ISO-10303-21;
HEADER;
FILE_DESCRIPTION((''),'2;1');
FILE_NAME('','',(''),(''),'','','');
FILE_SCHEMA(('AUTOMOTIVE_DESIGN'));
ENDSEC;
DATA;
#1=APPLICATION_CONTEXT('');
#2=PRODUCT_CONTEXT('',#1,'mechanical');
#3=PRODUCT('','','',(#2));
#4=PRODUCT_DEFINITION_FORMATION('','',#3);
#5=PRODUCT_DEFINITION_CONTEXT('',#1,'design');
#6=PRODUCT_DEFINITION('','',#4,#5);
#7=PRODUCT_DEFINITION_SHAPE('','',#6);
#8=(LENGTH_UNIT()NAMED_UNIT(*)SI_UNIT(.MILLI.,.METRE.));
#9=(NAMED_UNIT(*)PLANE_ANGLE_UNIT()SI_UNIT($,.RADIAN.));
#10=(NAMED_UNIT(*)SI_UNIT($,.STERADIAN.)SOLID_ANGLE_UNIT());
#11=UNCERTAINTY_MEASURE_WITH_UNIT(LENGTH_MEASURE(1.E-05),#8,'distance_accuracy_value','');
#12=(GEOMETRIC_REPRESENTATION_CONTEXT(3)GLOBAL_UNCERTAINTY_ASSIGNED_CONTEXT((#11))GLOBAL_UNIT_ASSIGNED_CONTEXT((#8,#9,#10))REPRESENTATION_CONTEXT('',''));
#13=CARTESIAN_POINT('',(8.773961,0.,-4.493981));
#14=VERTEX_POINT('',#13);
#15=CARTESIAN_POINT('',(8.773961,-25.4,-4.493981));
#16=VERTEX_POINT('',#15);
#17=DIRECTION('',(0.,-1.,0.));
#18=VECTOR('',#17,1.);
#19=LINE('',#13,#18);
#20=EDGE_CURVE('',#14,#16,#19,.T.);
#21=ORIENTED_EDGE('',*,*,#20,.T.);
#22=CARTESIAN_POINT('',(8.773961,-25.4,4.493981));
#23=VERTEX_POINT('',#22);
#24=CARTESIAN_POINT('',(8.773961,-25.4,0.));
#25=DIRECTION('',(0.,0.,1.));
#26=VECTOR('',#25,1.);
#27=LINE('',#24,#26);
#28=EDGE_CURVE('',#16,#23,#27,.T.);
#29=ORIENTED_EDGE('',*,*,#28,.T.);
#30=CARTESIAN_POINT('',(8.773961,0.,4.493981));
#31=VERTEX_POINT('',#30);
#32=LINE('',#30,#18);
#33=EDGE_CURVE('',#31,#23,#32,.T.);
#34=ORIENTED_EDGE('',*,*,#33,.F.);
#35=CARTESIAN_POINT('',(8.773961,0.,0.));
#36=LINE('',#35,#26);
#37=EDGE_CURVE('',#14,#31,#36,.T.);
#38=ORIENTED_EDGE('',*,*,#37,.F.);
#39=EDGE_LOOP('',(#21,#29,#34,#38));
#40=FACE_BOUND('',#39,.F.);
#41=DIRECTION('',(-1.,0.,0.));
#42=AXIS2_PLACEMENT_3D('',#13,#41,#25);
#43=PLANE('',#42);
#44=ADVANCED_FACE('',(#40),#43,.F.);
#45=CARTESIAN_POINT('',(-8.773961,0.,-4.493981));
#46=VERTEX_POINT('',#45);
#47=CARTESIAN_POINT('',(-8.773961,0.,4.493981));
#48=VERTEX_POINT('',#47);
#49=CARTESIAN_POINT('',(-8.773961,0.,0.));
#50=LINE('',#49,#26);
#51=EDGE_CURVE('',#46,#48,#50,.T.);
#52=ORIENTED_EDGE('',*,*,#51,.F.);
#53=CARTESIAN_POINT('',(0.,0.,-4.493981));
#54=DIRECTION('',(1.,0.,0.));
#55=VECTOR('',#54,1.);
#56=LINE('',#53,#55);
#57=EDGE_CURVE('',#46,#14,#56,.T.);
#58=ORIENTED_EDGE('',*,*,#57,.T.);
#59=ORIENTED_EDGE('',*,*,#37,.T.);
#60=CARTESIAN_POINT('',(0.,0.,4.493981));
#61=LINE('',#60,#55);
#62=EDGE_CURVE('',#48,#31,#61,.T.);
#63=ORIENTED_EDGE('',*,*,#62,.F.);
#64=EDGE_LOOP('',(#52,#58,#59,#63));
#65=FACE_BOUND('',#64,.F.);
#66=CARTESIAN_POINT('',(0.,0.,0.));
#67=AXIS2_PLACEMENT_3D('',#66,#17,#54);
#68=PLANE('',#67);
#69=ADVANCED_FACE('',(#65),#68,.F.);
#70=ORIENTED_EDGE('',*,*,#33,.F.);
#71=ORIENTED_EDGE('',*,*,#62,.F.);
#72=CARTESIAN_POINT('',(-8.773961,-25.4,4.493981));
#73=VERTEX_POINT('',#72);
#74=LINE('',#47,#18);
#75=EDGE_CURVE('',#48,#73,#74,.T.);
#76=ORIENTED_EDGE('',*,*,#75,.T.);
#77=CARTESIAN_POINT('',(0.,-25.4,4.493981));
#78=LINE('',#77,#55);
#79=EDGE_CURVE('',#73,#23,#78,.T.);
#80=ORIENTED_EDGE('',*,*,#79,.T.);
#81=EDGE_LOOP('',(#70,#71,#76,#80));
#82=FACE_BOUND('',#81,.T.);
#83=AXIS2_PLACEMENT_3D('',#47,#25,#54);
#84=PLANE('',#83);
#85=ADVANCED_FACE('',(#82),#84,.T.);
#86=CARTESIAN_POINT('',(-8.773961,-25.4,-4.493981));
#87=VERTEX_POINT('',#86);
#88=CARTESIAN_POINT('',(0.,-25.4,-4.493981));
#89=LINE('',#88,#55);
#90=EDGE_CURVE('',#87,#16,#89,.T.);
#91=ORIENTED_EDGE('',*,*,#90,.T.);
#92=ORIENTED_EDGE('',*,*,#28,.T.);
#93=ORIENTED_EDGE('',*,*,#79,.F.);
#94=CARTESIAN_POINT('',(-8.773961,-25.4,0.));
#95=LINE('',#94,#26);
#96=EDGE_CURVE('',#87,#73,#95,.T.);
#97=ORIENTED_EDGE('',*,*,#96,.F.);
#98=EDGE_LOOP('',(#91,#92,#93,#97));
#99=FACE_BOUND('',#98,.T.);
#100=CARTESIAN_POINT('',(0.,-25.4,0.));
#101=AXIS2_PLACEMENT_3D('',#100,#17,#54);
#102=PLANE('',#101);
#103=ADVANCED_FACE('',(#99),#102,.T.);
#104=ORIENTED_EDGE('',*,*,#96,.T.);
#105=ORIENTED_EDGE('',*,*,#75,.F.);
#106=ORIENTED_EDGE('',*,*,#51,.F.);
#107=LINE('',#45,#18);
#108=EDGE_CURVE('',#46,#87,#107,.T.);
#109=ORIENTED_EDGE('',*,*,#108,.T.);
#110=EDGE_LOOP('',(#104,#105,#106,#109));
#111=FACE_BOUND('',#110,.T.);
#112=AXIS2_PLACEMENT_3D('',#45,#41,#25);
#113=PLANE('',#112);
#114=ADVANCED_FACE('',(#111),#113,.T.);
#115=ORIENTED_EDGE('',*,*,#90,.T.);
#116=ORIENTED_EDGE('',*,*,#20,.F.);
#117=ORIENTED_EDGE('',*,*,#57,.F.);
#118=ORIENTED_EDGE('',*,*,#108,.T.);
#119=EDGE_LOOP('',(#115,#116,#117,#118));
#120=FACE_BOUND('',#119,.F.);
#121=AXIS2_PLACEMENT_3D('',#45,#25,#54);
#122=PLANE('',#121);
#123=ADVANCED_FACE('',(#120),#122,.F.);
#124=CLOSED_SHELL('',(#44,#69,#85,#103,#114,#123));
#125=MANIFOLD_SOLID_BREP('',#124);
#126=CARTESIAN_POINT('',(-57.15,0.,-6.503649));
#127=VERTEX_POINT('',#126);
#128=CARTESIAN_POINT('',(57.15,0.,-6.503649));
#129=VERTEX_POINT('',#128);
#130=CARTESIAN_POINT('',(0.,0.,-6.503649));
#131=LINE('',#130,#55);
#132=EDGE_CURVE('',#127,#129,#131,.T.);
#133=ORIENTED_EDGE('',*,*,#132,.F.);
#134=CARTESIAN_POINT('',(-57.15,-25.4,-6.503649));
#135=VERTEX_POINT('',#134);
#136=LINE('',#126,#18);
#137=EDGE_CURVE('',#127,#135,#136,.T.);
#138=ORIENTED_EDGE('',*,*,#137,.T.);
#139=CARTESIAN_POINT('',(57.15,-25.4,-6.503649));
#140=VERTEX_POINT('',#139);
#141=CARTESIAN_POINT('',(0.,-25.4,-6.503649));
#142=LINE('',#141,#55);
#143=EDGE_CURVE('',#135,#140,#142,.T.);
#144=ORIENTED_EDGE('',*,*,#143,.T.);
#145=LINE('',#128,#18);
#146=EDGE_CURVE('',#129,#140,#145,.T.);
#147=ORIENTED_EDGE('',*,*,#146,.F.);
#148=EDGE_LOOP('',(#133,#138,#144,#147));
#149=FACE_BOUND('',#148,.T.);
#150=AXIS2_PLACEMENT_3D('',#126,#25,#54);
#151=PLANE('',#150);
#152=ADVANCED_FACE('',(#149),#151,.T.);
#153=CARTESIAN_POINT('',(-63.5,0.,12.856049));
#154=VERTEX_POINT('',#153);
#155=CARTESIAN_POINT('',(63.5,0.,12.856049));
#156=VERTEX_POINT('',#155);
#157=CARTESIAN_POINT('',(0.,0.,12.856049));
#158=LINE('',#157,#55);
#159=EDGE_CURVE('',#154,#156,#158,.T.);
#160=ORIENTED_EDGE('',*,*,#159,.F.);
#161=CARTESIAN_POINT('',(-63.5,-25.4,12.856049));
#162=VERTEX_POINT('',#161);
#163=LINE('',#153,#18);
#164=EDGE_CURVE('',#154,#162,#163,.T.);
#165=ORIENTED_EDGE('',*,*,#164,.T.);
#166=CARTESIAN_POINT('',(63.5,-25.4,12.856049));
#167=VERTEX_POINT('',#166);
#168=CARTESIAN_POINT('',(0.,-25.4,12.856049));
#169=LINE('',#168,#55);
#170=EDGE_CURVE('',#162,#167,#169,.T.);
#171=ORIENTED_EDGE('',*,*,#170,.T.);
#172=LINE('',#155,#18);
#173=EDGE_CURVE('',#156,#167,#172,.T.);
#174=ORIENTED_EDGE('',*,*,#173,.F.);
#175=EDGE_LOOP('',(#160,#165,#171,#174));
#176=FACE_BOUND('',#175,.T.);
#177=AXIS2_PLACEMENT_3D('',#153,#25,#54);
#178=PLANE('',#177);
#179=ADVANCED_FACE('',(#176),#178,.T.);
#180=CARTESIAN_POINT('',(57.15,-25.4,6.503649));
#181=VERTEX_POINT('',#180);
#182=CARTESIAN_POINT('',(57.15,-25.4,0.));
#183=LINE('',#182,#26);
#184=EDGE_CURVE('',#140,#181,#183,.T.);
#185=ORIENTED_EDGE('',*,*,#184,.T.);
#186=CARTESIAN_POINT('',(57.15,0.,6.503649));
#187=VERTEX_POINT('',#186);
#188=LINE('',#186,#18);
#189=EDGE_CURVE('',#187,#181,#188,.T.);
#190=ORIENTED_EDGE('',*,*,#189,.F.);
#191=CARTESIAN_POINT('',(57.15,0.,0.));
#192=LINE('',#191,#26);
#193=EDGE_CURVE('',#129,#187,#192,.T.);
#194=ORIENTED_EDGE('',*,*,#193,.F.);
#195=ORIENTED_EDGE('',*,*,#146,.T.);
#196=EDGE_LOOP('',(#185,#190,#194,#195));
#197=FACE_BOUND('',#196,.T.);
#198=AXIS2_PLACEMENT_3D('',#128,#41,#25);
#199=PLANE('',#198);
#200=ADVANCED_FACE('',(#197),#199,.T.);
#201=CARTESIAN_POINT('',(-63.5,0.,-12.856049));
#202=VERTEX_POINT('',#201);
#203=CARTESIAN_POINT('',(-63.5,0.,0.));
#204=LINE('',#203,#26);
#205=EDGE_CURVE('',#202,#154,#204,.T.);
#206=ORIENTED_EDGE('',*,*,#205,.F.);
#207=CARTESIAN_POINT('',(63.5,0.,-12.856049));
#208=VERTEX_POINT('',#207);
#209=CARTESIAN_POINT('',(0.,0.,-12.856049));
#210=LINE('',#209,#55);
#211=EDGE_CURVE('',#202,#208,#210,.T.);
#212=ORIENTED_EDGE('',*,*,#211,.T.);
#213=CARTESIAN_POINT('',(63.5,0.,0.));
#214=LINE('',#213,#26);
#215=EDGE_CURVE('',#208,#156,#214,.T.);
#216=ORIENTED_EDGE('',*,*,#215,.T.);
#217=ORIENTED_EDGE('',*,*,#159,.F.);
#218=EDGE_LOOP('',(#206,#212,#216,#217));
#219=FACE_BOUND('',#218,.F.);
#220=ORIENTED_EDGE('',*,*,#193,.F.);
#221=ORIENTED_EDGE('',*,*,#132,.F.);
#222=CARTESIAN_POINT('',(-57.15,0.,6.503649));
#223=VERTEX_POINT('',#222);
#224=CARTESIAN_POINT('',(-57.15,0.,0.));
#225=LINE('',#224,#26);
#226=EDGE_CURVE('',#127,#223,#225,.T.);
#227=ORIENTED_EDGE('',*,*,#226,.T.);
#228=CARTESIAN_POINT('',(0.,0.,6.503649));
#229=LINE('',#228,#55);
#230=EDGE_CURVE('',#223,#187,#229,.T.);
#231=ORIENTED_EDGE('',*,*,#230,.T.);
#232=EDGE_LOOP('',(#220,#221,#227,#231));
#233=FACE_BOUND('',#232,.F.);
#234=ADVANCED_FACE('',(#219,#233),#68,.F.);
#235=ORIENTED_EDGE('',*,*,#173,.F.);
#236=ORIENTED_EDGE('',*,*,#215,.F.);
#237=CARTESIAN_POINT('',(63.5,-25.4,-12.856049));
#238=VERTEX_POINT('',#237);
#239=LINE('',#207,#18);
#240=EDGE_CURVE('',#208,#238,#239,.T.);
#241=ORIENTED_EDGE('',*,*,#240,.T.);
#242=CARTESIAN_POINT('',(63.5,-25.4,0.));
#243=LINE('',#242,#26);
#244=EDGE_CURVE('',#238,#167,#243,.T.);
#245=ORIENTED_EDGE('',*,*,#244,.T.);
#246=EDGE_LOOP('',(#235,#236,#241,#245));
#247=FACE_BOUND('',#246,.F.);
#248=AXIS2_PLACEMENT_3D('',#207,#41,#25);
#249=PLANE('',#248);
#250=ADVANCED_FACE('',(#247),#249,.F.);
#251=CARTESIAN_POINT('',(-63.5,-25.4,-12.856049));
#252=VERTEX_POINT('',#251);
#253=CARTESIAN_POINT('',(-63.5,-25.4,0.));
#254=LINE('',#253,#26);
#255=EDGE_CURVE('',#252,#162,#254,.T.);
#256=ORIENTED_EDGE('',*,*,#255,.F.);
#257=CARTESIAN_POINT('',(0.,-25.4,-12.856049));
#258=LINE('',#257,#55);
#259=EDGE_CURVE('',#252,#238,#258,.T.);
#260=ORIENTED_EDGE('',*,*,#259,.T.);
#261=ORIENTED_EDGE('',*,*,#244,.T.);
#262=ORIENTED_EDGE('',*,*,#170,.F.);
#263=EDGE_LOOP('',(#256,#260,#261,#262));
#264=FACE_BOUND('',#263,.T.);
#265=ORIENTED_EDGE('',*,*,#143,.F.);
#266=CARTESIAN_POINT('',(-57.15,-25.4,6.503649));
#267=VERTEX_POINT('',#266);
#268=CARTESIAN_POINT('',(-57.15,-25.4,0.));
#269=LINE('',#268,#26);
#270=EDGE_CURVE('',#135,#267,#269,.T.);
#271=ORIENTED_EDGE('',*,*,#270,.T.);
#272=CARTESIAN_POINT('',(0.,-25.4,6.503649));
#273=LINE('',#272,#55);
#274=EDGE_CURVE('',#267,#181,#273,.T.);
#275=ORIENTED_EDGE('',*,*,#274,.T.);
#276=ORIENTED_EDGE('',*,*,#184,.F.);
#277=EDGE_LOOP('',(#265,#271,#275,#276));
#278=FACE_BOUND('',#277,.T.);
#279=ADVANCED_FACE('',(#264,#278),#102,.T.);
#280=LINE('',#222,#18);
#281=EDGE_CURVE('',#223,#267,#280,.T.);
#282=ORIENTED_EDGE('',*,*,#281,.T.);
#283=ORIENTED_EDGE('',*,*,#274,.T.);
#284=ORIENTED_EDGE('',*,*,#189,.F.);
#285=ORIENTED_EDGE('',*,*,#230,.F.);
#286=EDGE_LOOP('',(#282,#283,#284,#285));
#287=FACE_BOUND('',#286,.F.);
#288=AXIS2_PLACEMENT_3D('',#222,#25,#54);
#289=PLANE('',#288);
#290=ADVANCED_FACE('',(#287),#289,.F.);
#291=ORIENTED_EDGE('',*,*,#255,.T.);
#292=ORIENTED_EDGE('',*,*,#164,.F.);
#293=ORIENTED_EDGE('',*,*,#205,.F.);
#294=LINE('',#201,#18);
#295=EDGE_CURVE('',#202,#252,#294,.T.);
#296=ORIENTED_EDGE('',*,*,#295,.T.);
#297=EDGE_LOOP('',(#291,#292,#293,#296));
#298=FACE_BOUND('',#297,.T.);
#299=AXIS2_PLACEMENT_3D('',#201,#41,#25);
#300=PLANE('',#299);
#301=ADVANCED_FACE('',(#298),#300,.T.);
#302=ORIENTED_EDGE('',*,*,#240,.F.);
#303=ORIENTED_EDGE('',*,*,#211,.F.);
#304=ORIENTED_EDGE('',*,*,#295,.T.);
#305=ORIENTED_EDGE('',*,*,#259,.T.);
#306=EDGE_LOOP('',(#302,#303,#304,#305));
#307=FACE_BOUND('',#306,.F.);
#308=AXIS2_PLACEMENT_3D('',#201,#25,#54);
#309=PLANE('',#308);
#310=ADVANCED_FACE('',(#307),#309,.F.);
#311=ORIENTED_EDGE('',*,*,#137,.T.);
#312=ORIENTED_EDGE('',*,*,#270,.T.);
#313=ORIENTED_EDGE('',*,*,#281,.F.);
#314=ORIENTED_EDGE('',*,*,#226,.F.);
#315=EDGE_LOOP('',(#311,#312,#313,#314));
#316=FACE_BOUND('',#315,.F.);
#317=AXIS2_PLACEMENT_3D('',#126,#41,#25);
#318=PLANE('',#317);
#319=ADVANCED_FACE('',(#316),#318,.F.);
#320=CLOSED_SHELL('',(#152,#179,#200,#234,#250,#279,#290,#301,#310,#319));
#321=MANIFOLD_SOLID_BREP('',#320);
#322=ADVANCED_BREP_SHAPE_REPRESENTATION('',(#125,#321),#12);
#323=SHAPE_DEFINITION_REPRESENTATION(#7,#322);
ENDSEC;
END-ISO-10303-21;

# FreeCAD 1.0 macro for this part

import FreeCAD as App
import Part
import Sketcher
from FreeCAD import Vector
Q = App.Units.Quantity


def add_polygon(sketch, points):
    """Adds a closed chain of lines whose ends are joined by coincident constraints."""
    first, n = sketch.GeometryCount, len(points)
    for a, b in zip(points, points[1:] + points[:1]):
        sketch.addGeometry(Part.LineSegment(App.Vector(*a, 0), App.Vector(*b, 0)), False)
    for i in range(n):
        sketch.addConstraint(Sketcher.Constraint("Coincident", first + i, 2, first + (i + 1) % n, 1))

doc = App.newDocument("Part")
body = doc.addObject("PartDesign::Body", "Body")

# Sketch on XZ plane
sketch1 = body.newObject("Sketcher::SketchObject", "Sketch")
sketch1.AttachmentSupport = (doc.getObject("XZ_Plane"), [""])
sketch1.MapMode = "FlatFace"
add_polygon(sketch1, [(-63.5, 12.856049), (-63.5, -12.856049), (63.5, -12.856049), (63.5, 12.856049)])  # lines 0-3
add_polygon(sketch1, [(57.15, -6.503649), (-57.15, -6.503649), (-57.15, 6.503649), (57.15, 6.503649)])  # lines 4-7
sketch1.addConstraint(Sketcher.Constraint("Vertical", 0))
sketch1.addConstraint(Sketcher.Constraint("Horizontal", 1))
sketch1.addConstraint(Sketcher.Constraint("Vertical", 2))
sketch1.addConstraint(Sketcher.Constraint("Horizontal", 3))
sketch1.addConstraint(Sketcher.Constraint("Horizontal", 4))
sketch1.addConstraint(Sketcher.Constraint("Vertical", 5))
sketch1.addConstraint(Sketcher.Constraint("Horizontal", 6))
sketch1.addConstraint(Sketcher.Constraint("Vertical", 7))
sketch1.addConstraint(Sketcher.Constraint("Symmetric", 0, 2, 2, 2, -1, 1))
sketch1.addConstraint(Sketcher.Constraint("Symmetric", 4, 2, 6, 2, -1, 1))
sketch1.addConstraint(Sketcher.Constraint("DistanceX", 1, 1, 1, 2, Q("5 in")))
sketch1.addConstraint(Sketcher.Constraint("DistanceX", 4, 2, 4, 1, Q("4.5 in")))
sketch1.addConstraint(Sketcher.Constraint("DistanceY", 0, 2, 0, 1, Q("25.712098 mm")))
sketch1.addConstraint(Sketcher.Constraint("DistanceY", 0, 2, 4, 2, Q("6.3524 mm")))
pad1 = body.newObject("PartDesign::Pad", "Pad")
pad1.Profile = sketch1
pad1.Length = Q("1 in")
body2 = doc.addObject("PartDesign::Body", "Body001")

# Sketch on XZ plane
sketch2 = body2.newObject("Sketcher::SketchObject", "Sketch001")
sketch2.AttachmentSupport = (doc.getObject("XZ_Plane001"), [""])
sketch2.MapMode = "FlatFace"
add_polygon(sketch2, [(-8.773961, 4.493981), (-8.773961, -4.493981), (8.773961, -4.493981), (8.773961, 4.493981)])  # lines 0-3
sketch2.addConstraint(Sketcher.Constraint("Vertical", 0))
sketch2.addConstraint(Sketcher.Constraint("Horizontal", 1))
sketch2.addConstraint(Sketcher.Constraint("Vertical", 2))
sketch2.addConstraint(Sketcher.Constraint("Horizontal", 3))
sketch2.addConstraint(Sketcher.Constraint("Symmetric", 0, 2, 2, 2, -1, 1))
sketch2.addConstraint(Sketcher.Constraint("DistanceX", 1, 1, 1, 2, Q("17.547922 mm")))
sketch2.addConstraint(Sketcher.Constraint("DistanceY", 0, 2, 0, 1, Q("8.987962 mm")))
pad2 = body2.newObject("PartDesign::Pad", "Pad001")
pad2.Profile = sketch2
pad2.Length = Q("1 in")

doc.recompute()
